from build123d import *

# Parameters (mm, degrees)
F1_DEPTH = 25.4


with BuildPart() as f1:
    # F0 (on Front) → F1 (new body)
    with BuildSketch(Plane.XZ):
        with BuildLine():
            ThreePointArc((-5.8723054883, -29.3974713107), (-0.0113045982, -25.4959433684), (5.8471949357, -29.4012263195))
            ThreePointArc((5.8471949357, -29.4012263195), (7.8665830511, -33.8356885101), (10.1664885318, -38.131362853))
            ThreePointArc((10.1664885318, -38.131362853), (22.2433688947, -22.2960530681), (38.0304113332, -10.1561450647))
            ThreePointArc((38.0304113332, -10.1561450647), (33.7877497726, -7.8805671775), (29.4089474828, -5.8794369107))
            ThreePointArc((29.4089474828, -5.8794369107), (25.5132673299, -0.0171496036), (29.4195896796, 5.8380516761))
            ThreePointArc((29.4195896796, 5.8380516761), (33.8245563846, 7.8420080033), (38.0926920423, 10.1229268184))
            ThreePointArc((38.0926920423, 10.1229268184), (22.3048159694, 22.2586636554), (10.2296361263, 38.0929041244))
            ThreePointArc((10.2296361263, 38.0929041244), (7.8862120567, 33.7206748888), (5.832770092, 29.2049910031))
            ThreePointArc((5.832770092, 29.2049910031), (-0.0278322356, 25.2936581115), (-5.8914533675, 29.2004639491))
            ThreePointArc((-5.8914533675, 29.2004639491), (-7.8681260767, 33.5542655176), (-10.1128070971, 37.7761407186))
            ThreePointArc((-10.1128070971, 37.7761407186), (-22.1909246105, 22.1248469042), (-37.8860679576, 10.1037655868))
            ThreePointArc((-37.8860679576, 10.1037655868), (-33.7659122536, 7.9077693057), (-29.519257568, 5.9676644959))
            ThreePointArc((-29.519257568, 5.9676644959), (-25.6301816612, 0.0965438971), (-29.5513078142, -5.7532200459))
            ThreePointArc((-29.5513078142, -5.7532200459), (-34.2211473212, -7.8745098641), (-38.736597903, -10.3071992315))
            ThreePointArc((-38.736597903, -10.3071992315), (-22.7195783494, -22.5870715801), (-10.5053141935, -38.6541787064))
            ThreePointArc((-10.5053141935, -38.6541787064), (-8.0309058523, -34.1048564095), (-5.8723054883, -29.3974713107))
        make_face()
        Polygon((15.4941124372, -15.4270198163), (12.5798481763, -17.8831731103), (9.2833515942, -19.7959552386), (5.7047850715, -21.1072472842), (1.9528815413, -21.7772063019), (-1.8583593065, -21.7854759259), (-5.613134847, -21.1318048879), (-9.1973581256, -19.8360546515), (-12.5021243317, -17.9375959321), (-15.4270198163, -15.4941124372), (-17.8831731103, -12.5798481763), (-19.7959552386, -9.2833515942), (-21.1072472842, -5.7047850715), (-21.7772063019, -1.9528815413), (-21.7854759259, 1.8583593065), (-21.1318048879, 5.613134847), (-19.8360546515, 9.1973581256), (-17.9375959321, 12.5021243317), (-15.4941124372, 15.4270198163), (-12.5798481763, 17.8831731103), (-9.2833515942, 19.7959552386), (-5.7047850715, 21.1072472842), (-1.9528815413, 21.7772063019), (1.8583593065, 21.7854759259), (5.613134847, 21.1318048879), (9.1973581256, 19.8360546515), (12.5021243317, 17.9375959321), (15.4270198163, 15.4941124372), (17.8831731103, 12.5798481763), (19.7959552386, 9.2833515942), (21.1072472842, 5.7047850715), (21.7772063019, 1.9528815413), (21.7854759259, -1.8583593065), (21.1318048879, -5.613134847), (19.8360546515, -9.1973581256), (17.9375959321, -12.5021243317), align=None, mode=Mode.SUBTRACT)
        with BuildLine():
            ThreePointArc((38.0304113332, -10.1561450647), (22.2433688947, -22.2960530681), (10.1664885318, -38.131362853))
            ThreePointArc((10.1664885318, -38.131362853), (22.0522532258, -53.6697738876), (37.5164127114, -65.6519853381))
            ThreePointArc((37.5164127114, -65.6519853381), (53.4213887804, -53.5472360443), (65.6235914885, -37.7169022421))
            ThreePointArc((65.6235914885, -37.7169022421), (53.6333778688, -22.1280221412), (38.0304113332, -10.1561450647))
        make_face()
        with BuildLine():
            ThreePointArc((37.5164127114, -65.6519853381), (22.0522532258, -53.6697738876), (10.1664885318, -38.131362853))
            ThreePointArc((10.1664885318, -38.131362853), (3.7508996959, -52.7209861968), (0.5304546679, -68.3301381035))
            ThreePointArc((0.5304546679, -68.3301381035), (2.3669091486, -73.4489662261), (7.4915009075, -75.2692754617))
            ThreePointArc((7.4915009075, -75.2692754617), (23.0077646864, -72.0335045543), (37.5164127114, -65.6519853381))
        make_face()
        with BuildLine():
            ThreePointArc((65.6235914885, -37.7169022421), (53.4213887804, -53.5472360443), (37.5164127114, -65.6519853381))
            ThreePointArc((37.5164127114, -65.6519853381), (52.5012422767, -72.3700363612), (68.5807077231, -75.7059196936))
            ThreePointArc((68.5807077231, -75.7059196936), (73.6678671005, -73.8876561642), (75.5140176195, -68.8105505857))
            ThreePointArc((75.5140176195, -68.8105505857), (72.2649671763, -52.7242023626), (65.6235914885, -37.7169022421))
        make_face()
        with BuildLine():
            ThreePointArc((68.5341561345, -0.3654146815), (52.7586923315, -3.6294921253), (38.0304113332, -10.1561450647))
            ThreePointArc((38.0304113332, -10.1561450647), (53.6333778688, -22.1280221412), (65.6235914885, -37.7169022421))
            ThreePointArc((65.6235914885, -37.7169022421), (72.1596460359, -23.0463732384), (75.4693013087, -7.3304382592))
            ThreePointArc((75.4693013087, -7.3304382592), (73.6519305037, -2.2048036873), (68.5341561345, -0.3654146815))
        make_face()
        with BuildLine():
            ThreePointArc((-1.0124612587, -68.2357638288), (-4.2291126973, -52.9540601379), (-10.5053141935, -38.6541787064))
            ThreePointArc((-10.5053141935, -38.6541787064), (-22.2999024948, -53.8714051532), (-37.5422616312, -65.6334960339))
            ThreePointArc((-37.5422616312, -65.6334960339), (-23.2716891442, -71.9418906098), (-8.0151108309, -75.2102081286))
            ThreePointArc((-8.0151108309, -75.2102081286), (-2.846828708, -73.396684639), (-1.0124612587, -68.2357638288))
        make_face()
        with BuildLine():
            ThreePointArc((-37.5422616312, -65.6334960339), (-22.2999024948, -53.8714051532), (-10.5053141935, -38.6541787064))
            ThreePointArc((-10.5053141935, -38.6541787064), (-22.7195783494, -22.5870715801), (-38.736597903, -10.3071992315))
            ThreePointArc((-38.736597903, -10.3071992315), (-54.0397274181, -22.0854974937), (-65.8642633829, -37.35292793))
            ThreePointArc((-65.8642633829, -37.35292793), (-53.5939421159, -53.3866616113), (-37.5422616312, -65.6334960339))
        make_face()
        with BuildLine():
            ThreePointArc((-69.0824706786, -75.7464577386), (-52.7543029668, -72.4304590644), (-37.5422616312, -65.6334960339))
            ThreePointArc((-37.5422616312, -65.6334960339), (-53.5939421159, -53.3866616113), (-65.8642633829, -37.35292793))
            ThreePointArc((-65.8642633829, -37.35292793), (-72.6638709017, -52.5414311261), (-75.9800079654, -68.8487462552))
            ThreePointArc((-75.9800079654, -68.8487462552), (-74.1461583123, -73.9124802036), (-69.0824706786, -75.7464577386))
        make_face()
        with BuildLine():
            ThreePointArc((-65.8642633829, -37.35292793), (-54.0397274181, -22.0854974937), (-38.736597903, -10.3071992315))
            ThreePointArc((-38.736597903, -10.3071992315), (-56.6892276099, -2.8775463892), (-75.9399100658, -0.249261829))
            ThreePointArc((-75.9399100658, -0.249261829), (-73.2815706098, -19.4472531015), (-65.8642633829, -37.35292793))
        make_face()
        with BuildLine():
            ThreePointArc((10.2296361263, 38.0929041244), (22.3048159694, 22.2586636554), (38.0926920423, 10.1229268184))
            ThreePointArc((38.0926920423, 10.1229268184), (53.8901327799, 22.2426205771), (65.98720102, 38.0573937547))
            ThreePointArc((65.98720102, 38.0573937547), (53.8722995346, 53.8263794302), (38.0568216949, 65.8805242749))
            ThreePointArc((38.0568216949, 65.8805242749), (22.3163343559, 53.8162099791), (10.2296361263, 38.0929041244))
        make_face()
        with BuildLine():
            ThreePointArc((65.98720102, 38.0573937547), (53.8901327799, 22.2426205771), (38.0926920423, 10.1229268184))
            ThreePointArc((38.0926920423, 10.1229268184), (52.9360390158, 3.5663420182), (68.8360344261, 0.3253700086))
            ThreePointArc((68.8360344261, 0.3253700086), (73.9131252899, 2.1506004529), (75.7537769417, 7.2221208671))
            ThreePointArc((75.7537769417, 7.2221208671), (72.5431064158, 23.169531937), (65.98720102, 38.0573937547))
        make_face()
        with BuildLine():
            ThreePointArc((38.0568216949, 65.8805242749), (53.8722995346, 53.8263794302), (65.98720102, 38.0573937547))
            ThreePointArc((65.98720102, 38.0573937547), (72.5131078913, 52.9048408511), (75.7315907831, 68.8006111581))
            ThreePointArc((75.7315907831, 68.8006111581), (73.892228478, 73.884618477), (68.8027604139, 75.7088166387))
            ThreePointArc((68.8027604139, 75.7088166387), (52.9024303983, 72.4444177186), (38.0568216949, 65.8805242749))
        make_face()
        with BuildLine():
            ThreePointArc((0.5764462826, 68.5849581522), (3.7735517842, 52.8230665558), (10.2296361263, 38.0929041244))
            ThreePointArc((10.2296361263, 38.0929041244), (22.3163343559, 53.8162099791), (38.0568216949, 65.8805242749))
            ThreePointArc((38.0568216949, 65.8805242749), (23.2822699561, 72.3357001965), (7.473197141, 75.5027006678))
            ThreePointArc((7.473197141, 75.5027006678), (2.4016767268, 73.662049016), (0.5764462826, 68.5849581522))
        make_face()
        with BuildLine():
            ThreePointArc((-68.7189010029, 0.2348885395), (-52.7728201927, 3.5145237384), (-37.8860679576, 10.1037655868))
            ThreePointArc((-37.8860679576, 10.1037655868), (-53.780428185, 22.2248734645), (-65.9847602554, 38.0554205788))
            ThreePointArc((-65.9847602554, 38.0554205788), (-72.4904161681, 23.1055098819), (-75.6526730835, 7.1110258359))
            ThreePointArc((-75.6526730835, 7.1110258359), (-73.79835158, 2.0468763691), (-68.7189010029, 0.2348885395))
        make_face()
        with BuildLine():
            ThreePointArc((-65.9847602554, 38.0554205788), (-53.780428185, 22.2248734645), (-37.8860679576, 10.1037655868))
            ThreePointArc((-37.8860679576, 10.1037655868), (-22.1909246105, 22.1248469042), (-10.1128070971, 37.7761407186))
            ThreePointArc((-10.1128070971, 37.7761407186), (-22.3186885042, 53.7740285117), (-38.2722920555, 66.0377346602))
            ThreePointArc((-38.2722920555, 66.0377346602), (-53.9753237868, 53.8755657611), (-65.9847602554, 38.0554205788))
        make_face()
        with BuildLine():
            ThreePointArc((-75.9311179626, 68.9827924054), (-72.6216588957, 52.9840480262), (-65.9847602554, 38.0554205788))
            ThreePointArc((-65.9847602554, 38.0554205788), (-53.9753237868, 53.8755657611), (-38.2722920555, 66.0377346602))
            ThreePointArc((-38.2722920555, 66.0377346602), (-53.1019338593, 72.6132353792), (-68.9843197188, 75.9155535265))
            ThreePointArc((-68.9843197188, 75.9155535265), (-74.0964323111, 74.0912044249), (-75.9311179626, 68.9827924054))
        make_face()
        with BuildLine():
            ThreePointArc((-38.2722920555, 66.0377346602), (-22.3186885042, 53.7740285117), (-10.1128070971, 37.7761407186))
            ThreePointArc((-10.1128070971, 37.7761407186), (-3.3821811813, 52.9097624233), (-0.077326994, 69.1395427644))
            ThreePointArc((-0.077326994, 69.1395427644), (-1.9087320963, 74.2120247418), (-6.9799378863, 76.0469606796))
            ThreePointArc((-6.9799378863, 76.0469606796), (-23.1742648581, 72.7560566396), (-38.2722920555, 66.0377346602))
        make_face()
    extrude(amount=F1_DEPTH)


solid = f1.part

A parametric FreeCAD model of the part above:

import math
import FreeCAD as App
import Part
import Sketcher
from FreeCAD import Vector
Q = App.Units.Quantity

doc = App.newDocument("Part")
body = doc.addObject("PartDesign::Body", "Body")

# Sketch on XZ plane
sketch1 = body.newObject("Sketcher::SketchObject", "Sketch")
sketch1.AttachmentSupport = (doc.getObject("XZ_Plane"), [""])
sketch1.MapMode = "FlatFace"
sketch1.addGeometry([
    Part.ArcOfCircle(Part.Circle(Vector(0, -31.8, 0), Vector(0, 0, 1), 6.3), math.radians(23), math.radians(157)),  # 0
    Part.ArcOfCircle(Part.Circle(Vector(75.9, -0.2, 0), Vector(0, 0, 1), 75.9), math.radians(-157.36), math.radians(-149.99)),  # 1
    Part.ArcOfCircle(Part.Circle(Vector(75.9, -75.7, 0), Vector(0, 0, 1), 75.7), math.radians(150), math.radians(174)),  # 2
    Part.ArcOfCircle(Part.Circle(Vector(6.8, -69, 0), Vector(0, 0, 1), 6.3), math.radians(174), math.radians(276)),  # 3
    Part.ArcOfCircle(Part.Circle(Vector(-0.2, 0.4, 0), Vector(0, 0, 1), 76.1), math.radians(-84), math.radians(-60)),  # 4
    Part.ArcOfCircle(Part.Circle(Vector(75.9, -0.2, 0), Vector(0, 0, 1), 75.9), math.radians(-120), math.radians(-96)),  # 5
    Part.ArcOfCircle(Part.Circle(Vector(69.2, -69.4, 0), Vector(0, 0, 1), 6.3), math.radians(-96), math.radians(5)),  # 6
    Part.ArcOfCircle(Part.Circle(Vector(0.2, -75.7, 0), Vector(0, 0, 1), 75.7), math.radians(5), math.radians(30)),  # 7
    Part.ArcOfCircle(Part.Circle(Vector(-0.2, 0.4, 0), Vector(0, 0, 1), 76.1), math.radians(-30), math.radians(-6)),  # 8
    Part.ArcOfCircle(Part.Circle(Vector(69.2, -6.7, 0), Vector(0, 0, 1), 6.3), math.radians(-6), math.radians(96)),  # 9
    Part.ArcOfCircle(Part.Circle(Vector(75.9, -75.7, 0), Vector(0, 0, 1), 75.7), math.radians(96), math.radians(120)),  # 10
    Part.ArcOfCircle(Part.Circle(Vector(0.2, -75.7, 0), Vector(0, 0, 1), 75.7), math.radians(59.97), math.radians(67.26)),  # 11
    Part.ArcOfCircle(Part.Circle(Vector(31.9, 0, 0), Vector(0, 0, 1), 6.3), math.radians(113), math.radians(247)),  # 12
    Part.ArcOfCircle(Part.Circle(Vector(0.2, 75.8, 0), Vector(0, 0, 1), 75.8), math.radians(-67.37), math.radians(-60.05)),  # 13
    Part.ArcOfCircle(Part.Circle(Vector(75.9, 75.7, 0), Vector(0, 0, 1), 75.7), math.radians(-120), math.radians(-95)),  # 14
    Part.ArcOfCircle(Part.Circle(Vector(69.4, 6.6, 0), Vector(0, 0, 1), 6.3), math.radians(-95), math.radians(5)),  # 15
    Part.ArcOfCircle(Part.Circle(Vector(0.6, 0.4, 0), Vector(0, 0, 1), 75.4), math.radians(5), math.radians(30)),  # 16
    Part.ArcOfCircle(Part.Circle(Vector(0.2, 75.8, 0), Vector(0, 0, 1), 75.8), math.radians(-30), math.radians(-5)),  # 17
    Part.ArcOfCircle(Part.Circle(Vector(69.4, 69.4, 0), Vector(0, 0, 1), 6.3), math.radians(-5), math.radians(95)),  # 18
    Part.ArcOfCircle(Part.Circle(Vector(76.1, 0, 0), Vector(0, 0, 1), 76.1), math.radians(95), math.radians(120)),  # 19
    Part.ArcOfCircle(Part.Circle(Vector(0.6, 0.4, 0), Vector(0, 0, 1), 75.4), math.radians(60), math.radians(85)),  # 20
    Part.ArcOfCircle(Part.Circle(Vector(6.9, 69.2, 0), Vector(0, 0, 1), 6.3), math.radians(85), math.radians(185)),  # 21
    Part.ArcOfCircle(Part.Circle(Vector(75.9, 75.7, 0), Vector(0, 0, 1), 75.7), math.radians(-175), math.radians(-150)),  # 22
    Part.ArcOfCircle(Part.Circle(Vector(76.1, 0, 0), Vector(0, 0, 1), 76.1), math.radians(149.94), math.radians(157.42)),  # 23
    Part.ArcOfCircle(Part.Circle(Vector(0, 31.6, 0), Vector(0, 0, 1), 6.3), math.radians(-157), math.radians(-23)),  # 24
    Part.ArcOfCircle(Part.Circle(Vector(-76.5, -0.2, 0), Vector(0, 0, 1), 76.5), math.radians(22.63), math.radians(29.79)),  # 25
    Part.ArcOfCircle(Part.Circle(Vector(-76, 76.2, 0), Vector(0, 0, 1), 76.3), math.radians(-30), math.radians(-5)),  # 26
    Part.ArcOfCircle(Part.Circle(Vector(-6.4, 69.7, 0), Vector(0, 0, 1), 6.3), math.radians(-5), math.radians(95)),  # 27
    Part.ArcOfCircle(Part.Circle(Vector(-0.1, 0.5, 0), Vector(0, 0, 1), 75.9), math.radians(95), math.radians(120)),  # 28
    Part.ArcOfCircle(Part.Circle(Vector(-76.5, -0.2, 0), Vector(0, 0, 1), 76.5), math.radians(60), math.radians(84)),  # 29
    Part.ArcOfCircle(Part.Circle(Vector(-69.6, 69.6, 0), Vector(0, 0, 1), 6.3), math.radians(84), math.radians(186)),  # 30
    Part.ArcOfCircle(Part.Circle(Vector(0.1, 76.4, 0), Vector(0, 0, 1), 76.4), math.radians(-174), math.radians(-150)),  # 31
    Part.ArcOfCircle(Part.Circle(Vector(-0.1, 0.5, 0), Vector(0, 0, 1), 75.9), math.radians(150), math.radians(175)),  # 32
    Part.ArcOfCircle(Part.Circle(Vector(-69.3, 6.6, 0), Vector(0, 0, 1), 6.3), math.radians(175), math.radians(275)),  # 33
    Part.ArcOfCircle(Part.Circle(Vector(-76, 76.2, 0), Vector(0, 0, 1), 76.3), math.radians(-85), math.radians(-60)),  # 34
    Part.ArcOfCircle(Part.Circle(Vector(0.1, 76.4, 0), Vector(0, 0, 1), 76.4), math.radians(-119.81), math.radians(-112.8)),  # 35
    Part.ArcOfCircle(Part.Circle(Vector(-32, 0.1, 0), Vector(0, 0, 1), 6.3), math.radians(-68), math.radians(67)),  # 36
    Part.ArcOfCircle(Part.Circle(Vector(-0.6, -75.7, 0), Vector(0, 0, 1), 75.7), math.radians(112.49), math.radians(120.26)),  # 37
    Part.ArcOfCircle(Part.Circle(Vector(-76.5, -76.1, 0), Vector(0, 0, 1), 75.9), math.radians(60), math.radians(90)),  # 38
    Part.ArcOfCircle(Part.Circle(Vector(0.2, 0.5, 0), Vector(0, 0, 1), 76.2), math.radians(-179), math.radians(-150)),  # 39
    Part.ArcOfCircle(Part.Circle(Vector(-0.6, -75.7, 0), Vector(0, 0, 1), 75.7), math.radians(150), math.radians(175)),  # 40
    Part.ArcOfCircle(Part.Circle(Vector(-69.7, -69.4, 0), Vector(0, 0, 1), 6.3), math.radians(175), math.radians(275)),  # 41
    Part.ArcOfCircle(Part.Circle(Vector(-75.9, -0.1, 0), Vector(0, 0, 1), 75.9), math.radians(-85), math.radians(-60)),  # 42
    Part.ArcOfCircle(Part.Circle(Vector(0.2, 0.5, 0), Vector(0, 0, 1), 76.2), math.radians(-120), math.radians(-96)),  # 43
    Part.ArcOfCircle(Part.Circle(Vector(-7.3, -68.9, 0), Vector(0, 0, 1), 6.3), math.radians(-96), math.radians(6)),  # 44
    Part.ArcOfCircle(Part.Circle(Vector(-76.5, -76.1, 0), Vector(0, 0, 1), 75.9), math.radians(6), math.radians(30)),  # 45
    Part.ArcOfCircle(Part.Circle(Vector(-75.9, -0.1, 0), Vector(0, 0, 1), 75.9), math.radians(-30.5), math.radians(-22.68)),  # 46
    Part.LineSegment(Vector(17.9, -12.5, 0), Vector(15.5, -15.4, 0)),  # 47
    Part.LineSegment(Vector(15.5, -15.4, 0), Vector(12.6, -17.9, 0)),  # 48
    Part.LineSegment(Vector(12.6, -17.9, 0), Vector(9.3, -19.8, 0)),  # 49
    Part.LineSegment(Vector(9.3, -19.8, 0), Vector(5.7, -21.1, 0)),  # 50
    Part.LineSegment(Vector(5.7, -21.1, 0), Vector(2, -21.8, 0)),  # 51
    Part.LineSegment(Vector(2, -21.8, 0), Vector(-1.9, -21.8, 0)),  # 52
    Part.LineSegment(Vector(-1.9, -21.8, 0), Vector(-5.6, -21.1, 0)),  # 53
    Part.LineSegment(Vector(-5.6, -21.1, 0), Vector(-9.2, -19.8, 0)),  # 54
    Part.LineSegment(Vector(-9.2, -19.8, 0), Vector(-12.5, -17.9, 0)),  # 55
    Part.LineSegment(Vector(-12.5, -17.9, 0), Vector(-15.4, -15.5, 0)),  # 56
    Part.LineSegment(Vector(-15.4, -15.5, 0), Vector(-17.9, -12.6, 0)),  # 57
    Part.LineSegment(Vector(-17.9, -12.6, 0), Vector(-19.8, -9.3, 0)),  # 58
    Part.LineSegment(Vector(-19.8, -9.3, 0), Vector(-21.1, -5.7, 0)),  # 59
    Part.LineSegment(Vector(-21.1, -5.7, 0), Vector(-21.8, -2, 0)),  # 60
    Part.LineSegment(Vector(-21.8, -2, 0), Vector(-21.8, 1.9, 0)),  # 61
    Part.LineSegment(Vector(-21.8, 1.9, 0), Vector(-21.1, 5.6, 0)),  # 62
    Part.LineSegment(Vector(-21.1, 5.6, 0), Vector(-19.8, 9.2, 0)),  # 63
    Part.LineSegment(Vector(-19.8, 9.2, 0), Vector(-17.9, 12.5, 0)),  # 64
    Part.LineSegment(Vector(-17.9, 12.5, 0), Vector(-15.5, 15.4, 0)),  # 65
    Part.LineSegment(Vector(-15.5, 15.4, 0), Vector(-12.6, 17.9, 0)),  # 66
    Part.LineSegment(Vector(-12.6, 17.9, 0), Vector(-9.3, 19.8, 0)),  # 67
    Part.LineSegment(Vector(-9.3, 19.8, 0), Vector(-5.7, 21.1, 0)),  # 68
    Part.LineSegment(Vector(-5.7, 21.1, 0), Vector(-2, 21.8, 0)),  # 69
    Part.LineSegment(Vector(-2, 21.8, 0), Vector(1.9, 21.8, 0)),  # 70
    Part.LineSegment(Vector(1.9, 21.8, 0), Vector(5.6, 21.1, 0)),  # 71
    Part.LineSegment(Vector(5.6, 21.1, 0), Vector(9.2, 19.8, 0)),  # 72
    Part.LineSegment(Vector(9.2, 19.8, 0), Vector(12.5, 17.9, 0)),  # 73
    Part.LineSegment(Vector(12.5, 17.9, 0), Vector(15.4, 15.5, 0)),  # 74
    Part.LineSegment(Vector(15.4, 15.5, 0), Vector(17.9, 12.6, 0)),  # 75
    Part.LineSegment(Vector(17.9, 12.6, 0), Vector(19.8, 9.3, 0)),  # 76
    Part.LineSegment(Vector(19.8, 9.3, 0), Vector(21.1, 5.7, 0)),  # 77
    Part.LineSegment(Vector(21.1, 5.7, 0), Vector(21.8, 2, 0)),  # 78
    Part.LineSegment(Vector(21.8, 2, 0), Vector(21.8, -1.9, 0)),  # 79
    Part.LineSegment(Vector(21.8, -1.9, 0), Vector(21.1, -5.6, 0)),  # 80
    Part.LineSegment(Vector(21.1, -5.6, 0), Vector(19.8, -9.2, 0)),  # 81
    Part.LineSegment(Vector(19.8, -9.2, 0), Vector(17.9, -12.5, 0)),  # 82
], False)
sketch1.addConstraint([
    Sketcher.Constraint("Tangent", 0, 1, 1, 1),
    Sketcher.Constraint("Coincident", 1, 2, 2, 1),
    Sketcher.Constraint("Tangent", 2, 2, 3, 1),
    Sketcher.Constraint("Tangent", 3, 2, 4, 1),
    Sketcher.Constraint("Coincident", 4, 2, 5, 1),
    Sketcher.Constraint("Tangent", 5, 2, 6, 1),
    Sketcher.Constraint("Tangent", 6, 2, 7, 1),
    Sketcher.Constraint("Coincident", 7, 2, 8, 1),
    Sketcher.Constraint("Tangent", 8, 2, 9, 1),
    Sketcher.Constraint("Tangent", 9, 2, 10, 1),
    Sketcher.Constraint("Coincident", 10, 2, 11, 1),
    Sketcher.Constraint("Tangent", 11, 2, 12, 2),
    Sketcher.Constraint("Tangent", 12, 1, 13, 1),
    Sketcher.Constraint("Coincident", 13, 2, 14, 1),
    Sketcher.Constraint("Tangent", 14, 2, 15, 1),
    Sketcher.Constraint("Tangent", 15, 2, 16, 1),
    Sketcher.Constraint("Coincident", 16, 2, 17, 1),
    Sketcher.Constraint("Tangent", 17, 2, 18, 1),
    Sketcher.Constraint("Tangent", 18, 2, 19, 1),
    Sketcher.Constraint("Coincident", 19, 2, 20, 1),
    Sketcher.Constraint("Tangent", 20, 2, 21, 1),
    Sketcher.Constraint("Tangent", 21, 2, 22, 1),
    Sketcher.Constraint("Coincident", 22, 2, 23, 1),
    Sketcher.Constraint("Tangent", 23, 2, 24, 2),
    Sketcher.Constraint("Tangent", 24, 1, 25, 1),
    Sketcher.Constraint("Coincident", 25, 2, 26, 1),
    Sketcher.Constraint("Tangent", 26, 2, 27, 1),
    Sketcher.Constraint("Tangent", 27, 2, 28, 1),
    Sketcher.Constraint("Coincident", 28, 2, 29, 1),
    Sketcher.Constraint("Tangent", 29, 2, 30, 1),
    Sketcher.Constraint("Tangent", 30, 2, 31, 1),
    Sketcher.Constraint("Coincident", 31, 2, 32, 1),
    Sketcher.Constraint("Tangent", 32, 2, 33, 1),
    Sketcher.Constraint("Tangent", 33, 2, 34, 1),
    Sketcher.Constraint("Coincident", 34, 2, 35, 1),
    Sketcher.Constraint("Tangent", 35, 2, 36, 2),
    Sketcher.Constraint("Tangent", 36, 1, 37, 1),
    Sketcher.Constraint("Coincident", 37, 2, 38, 1),
    Sketcher.Constraint("Coincident", 38, 2, 39, 1),
    Sketcher.Constraint("Coincident", 39, 2, 40, 1),
    Sketcher.Constraint("Tangent", 40, 2, 41, 1),
    Sketcher.Constraint("Tangent", 41, 2, 42, 1),
    Sketcher.Constraint("Coincident", 42, 2, 43, 1),
    Sketcher.Constraint("Tangent", 43, 2, 44, 1),
    Sketcher.Constraint("Tangent", 44, 2, 45, 1),
    Sketcher.Constraint("Coincident", 45, 2, 46, 1),
    Sketcher.Constraint("Tangent", 46, 2, 0, 2),
    Sketcher.Constraint("Coincident", 47, 2, 48, 1),
    Sketcher.Constraint("Coincident", 48, 2, 49, 1),
    Sketcher.Constraint("Coincident", 49, 2, 50, 1),
    Sketcher.Constraint("Coincident", 50, 2, 51, 1),
    Sketcher.Constraint("Coincident", 51, 2, 52, 1),
    Sketcher.Constraint("Coincident", 52, 2, 53, 1),
    Sketcher.Constraint("Coincident", 53, 2, 54, 1),
    Sketcher.Constraint("Coincident", 54, 2, 55, 1),
    Sketcher.Constraint("Coincident", 55, 2, 56, 1),
    Sketcher.Constraint("Coincident", 56, 2, 57, 1),
    Sketcher.Constraint("Coincident", 57, 2, 58, 1),
    Sketcher.Constraint("Coincident", 58, 2, 59, 1),
    Sketcher.Constraint("Coincident", 59, 2, 60, 1),
    Sketcher.Constraint("Coincident", 60, 2, 61, 1),
    Sketcher.Constraint("Coincident", 61, 2, 62, 1),
    Sketcher.Constraint("Coincident", 62, 2, 63, 1),
    Sketcher.Constraint("Coincident", 63, 2, 64, 1),
    Sketcher.Constraint("Coincident", 64, 2, 65, 1),
    Sketcher.Constraint("Coincident", 65, 2, 66, 1),
    Sketcher.Constraint("Coincident", 66, 2, 67, 1),
    Sketcher.Constraint("Coincident", 67, 2, 68, 1),
    Sketcher.Constraint("Coincident", 68, 2, 69, 1),
    Sketcher.Constraint("Coincident", 69, 2, 70, 1),
    Sketcher.Constraint("Coincident", 70, 2, 71, 1),
    Sketcher.Constraint("Coincident", 71, 2, 72, 1),
    Sketcher.Constraint("Coincident", 72, 2, 73, 1),
    Sketcher.Constraint("Coincident", 73, 2, 74, 1),
    Sketcher.Constraint("Coincident", 74, 2, 75, 1),
    Sketcher.Constraint("Coincident", 75, 2, 76, 1),
    Sketcher.Constraint("Coincident", 76, 2, 77, 1),
    Sketcher.Constraint("Coincident", 77, 2, 78, 1),
    Sketcher.Constraint("Coincident", 78, 2, 79, 1),
    Sketcher.Constraint("Coincident", 79, 2, 80, 1),
    Sketcher.Constraint("Coincident", 80, 2, 81, 1),
    Sketcher.Constraint("Coincident", 81, 2, 82, 1),
    Sketcher.Constraint("Coincident", 82, 2, 47, 1),
    Sketcher.Constraint("Coincident", 5, 3, 1, 3),
    Sketcher.Constraint("Coincident", 8, 3, 4, 3),
    Sketcher.Constraint("Coincident", 10, 3, 2, 3),
    Sketcher.Constraint("Coincident", 11, 3, 7, 3),
    Sketcher.Constraint("Coincident", 17, 3, 13, 3),
    Sketcher.Constraint("Coincident", 20, 3, 16, 3),
    Sketcher.Constraint("Coincident", 22, 3, 14, 3),
    Sketcher.Constraint("Coincident", 23, 3, 19, 3),
    Sketcher.Constraint("Coincident", 29, 3, 25, 3),
    Sketcher.Constraint("Coincident", 32, 3, 28, 3),
    Sketcher.Constraint("Coincident", 34, 3, 26, 3),
    Sketcher.Constraint("Coincident", 35, 3, 31, 3),
    Sketcher.Constraint("Coincident", 40, 3, 37, 3),
    Sketcher.Constraint("Coincident", 43, 3, 39, 3),
    Sketcher.Constraint("Coincident", 45, 3, 38, 3),
    Sketcher.Constraint("Coincident", 46, 3, 42, 3),
    Sketcher.Constraint("Equal", 0, 3),
    Sketcher.Constraint("Equal", 1, 5),
    Sketcher.Constraint("Equal", 3, 6),
    Sketcher.Constraint("Equal", 4, 8),
    Sketcher.Constraint("Equal", 6, 9),
    Sketcher.Constraint("Equal", 2, 10),
    Sketcher.Constraint("Equal", 7, 11),
    Sketcher.Constraint("Equal", 9, 12),
    Sketcher.Constraint("Equal", 12, 15),
    Sketcher.Constraint("Equal", 13, 17),
    Sketcher.Constraint("Equal", 15, 18),
    Sketcher.Constraint("Equal", 16, 20),
    Sketcher.Constraint("Equal", 18, 21),
    Sketcher.Constraint("Equal", 14, 22),
    Sketcher.Constraint("Equal", 19, 23),
    Sketcher.Constraint("Equal", 21, 24),
    Sketcher.Constraint("Equal", 24, 27),
    Sketcher.Constraint("Equal", 25, 29),
    Sketcher.Constraint("Equal", 27, 30),
    Sketcher.Constraint("Equal", 28, 32),
    Sketcher.Constraint("Equal", 30, 33),
    Sketcher.Constraint("Equal", 26, 34),
    Sketcher.Constraint("Equal", 31, 35),
    Sketcher.Constraint("Equal", 33, 36),
    Sketcher.Constraint("Equal", 37, 40),
    Sketcher.Constraint("Equal", 36, 41),
    Sketcher.Constraint("Equal", 39, 43),
    Sketcher.Constraint("Equal", 41, 44),
    Sketcher.Constraint("Equal", 38, 45),
    Sketcher.Constraint("Equal", 42, 46),
    Sketcher.Constraint("Symmetric", 47, 2, 65, 2, -1, 1),
    Sketcher.Constraint("Symmetric", 48, 2, 66, 2, -1, 1),
    Sketcher.Constraint("Symmetric", 49, 2, 67, 2, -1, 1),
    Sketcher.Constraint("Symmetric", 50, 2, 68, 2, -1, 1),
    Sketcher.Constraint("Symmetric", 51, 2, 69, 2, -1, 1),
    Sketcher.Constraint("Symmetric", 52, 2, 70, 2, -1, 1),
    Sketcher.Constraint("Symmetric", 53, 2, 71, 2, -1, 1),
    Sketcher.Constraint("Symmetric", 54, 2, 72, 2, -1, 1),
    Sketcher.Constraint("Symmetric", 55, 2, 73, 2, -1, 1),
    Sketcher.Constraint("Symmetric", 56, 2, 74, 2, -1, 1),
    Sketcher.Constraint("Symmetric", 57, 2, 75, 2, -1, 1),
    Sketcher.Constraint("Symmetric", 58, 2, 76, 2, -1, 1),
    Sketcher.Constraint("Symmetric", 59, 2, 77, 2, -1, 1),
    Sketcher.Constraint("Symmetric", 60, 2, 78, 2, -1, 1),
    Sketcher.Constraint("Symmetric", 61, 2, 79, 2, -1, 1),
    Sketcher.Constraint("Symmetric", 62, 2, 80, 2, -1, 1),
    Sketcher.Constraint("Symmetric", 63, 2, 81, 2, -1, 1),
    Sketcher.Constraint("Symmetric", 64, 2, 82, 2, -1, 1),
    Sketcher.Constraint("Perpendicular", 47, 56),
    Sketcher.Constraint("Perpendicular", 48, 57),
    Sketcher.Constraint("Perpendicular", 49, 58),
    Sketcher.Constraint("Perpendicular", 50, 59),
    Sketcher.Constraint("Perpendicular", 51, 60),
    Sketcher.Constraint("Perpendicular", 52, 61),
    Sketcher.Constraint("Perpendicular", 53, 62),
    Sketcher.Constraint("Perpendicular", 54, 63),
    Sketcher.Constraint("Perpendicular", 55, 64),
    Sketcher.Constraint("Equal", 47, 48),
    Sketcher.Constraint("Equal", 48, 49),
    Sketcher.Constraint("Equal", 49, 50),
    Sketcher.Constraint("Equal", 50, 51),
    Sketcher.Constraint("Equal", 51, 52),
    Sketcher.Constraint("Equal", 52, 53),
    Sketcher.Constraint("Equal", 53, 54),
    Sketcher.Constraint("Equal", 54, 55),
    Sketcher.Constraint("Equal", 55, 56),
    Sketcher.Constraint("Equal", 56, 57),
    Sketcher.Constraint("Equal", 57, 58),
    Sketcher.Constraint("Equal", 58, 59),
    Sketcher.Constraint("Equal", 59, 60),
    Sketcher.Constraint("Equal", 60, 61),
    Sketcher.Constraint("Equal", 61, 62),
    Sketcher.Constraint("Equal", 62, 63),
    Sketcher.Constraint("Equal", 63, 64),
    Sketcher.Constraint("Radius", 0, Q("0.25 in")),
    Sketcher.Constraint("Radius", 1, Q("75.860819 mm")),
    Sketcher.Constraint("Radius", 2, Q("75.738649 mm")),
    Sketcher.Constraint("Radius", 4, Q("76.055311 mm")),
    Sketcher.Constraint("Radius", 16, Q("75.413681 mm")),
    Sketcher.Constraint("Radius", 25, Q("76.536228 mm")),
    Sketcher.Constraint("Radius", 26, Q("76.268481 mm")),
    Sketcher.Constraint("Radius", 31, Q("76.363582 mm")),
    Sketcher.Constraint("Radius", 42, Q("75.941221 mm")),
    Sketcher.Constraint("DistanceX", 38, 3, -1, 1, Q("3.0116998 in")),
    Sketcher.Constraint("DistanceY", 44, 3, -1, 1, Q("2.7125002 in")),
    Sketcher.Constraint("DistanceY", 8, 2, -1, 1, Q("0.2885999 in")),
    Sketcher.Constraint("DistanceX", -1, 1, 19, 2, Q("1.4983001 in")),
    Sketcher.Constraint("Radius", 7, Q("75.657764 mm")),
    Sketcher.Constraint("Radius", 13, Q("75.811367 mm")),
    Sketcher.Constraint("Radius", 14, Q("75.666765 mm")),
    Sketcher.Constraint("Radius", 19, Q("76.062048 mm")),
    Sketcher.Constraint("Radius", 28, Q("75.889316 mm")),
    Sketcher.Constraint("Radius", 37, Q("75.688908 mm")),
    Sketcher.Constraint("Radius", 38, Q("75.897964 mm")),
    Sketcher.Constraint("Radius", 39, Q("76.172325 mm")),
    Sketcher.Constraint("DistanceX", -1, 1, 18, 3, Q("69.408798 mm")),
    Sketcher.Constraint("DistanceX", 33, 3, -1, 1, Q("69.327002 mm")),
    Sketcher.Constraint("DistanceX", -1, 1, 3, 2, Q("7.491501 mm")),
    Sketcher.Constraint("DistanceX", -1, 1, 8, 2, Q("75.469301 mm")),
    Sketcher.Constraint("DistanceX", -1, 1, 16, 2, Q("65.987201 mm")),
    Sketcher.Constraint("DistanceY", -1, 1, 20, 2, Q("75.502701 mm")),
    Sketcher.Constraint("DistanceX", 33, 2, -1, 1, Q("68.718901 mm")),
    Sketcher.Constraint("DistanceY", 37, 2, -1, 1, Q("10.307199 mm")),
    Sketcher.Constraint("Distance", 47, Q("3.81125 mm")),
    Sketcher.Constraint("DistanceX", 0, 3, -1, 1, Q("0.013339 mm")),
    Sketcher.Constraint("DistanceY", 1, 3, -1, 1, Q("0.195209 mm")),
    Sketcher.Constraint("DistanceY", -1, 1, 4, 3, Q("0.396882 mm")),
    Sketcher.Constraint("DistanceX", -1, 1, 7, 3, Q("0.166718 mm")),
    Sketcher.Constraint("DistanceY", 7, 3, -1, 1, Q("75.657581 mm")),
    Sketcher.Constraint("DistanceY", -1, 1, 13, 3, Q("75.810971 mm")),
    Sketcher.Constraint("DistanceX", -1, 1, 16, 3, Q("0.649451 mm")),
    Sketcher.Constraint("DistanceY", 19, 3, -1, 1, Q("0.006029 mm")),
    Sketcher.Constraint("DistanceX", 25, 3, -1, 1, Q("76.535829 mm")),
    Sketcher.Constraint("DistanceY", -1, 1, 27, 3, Q("69.72346 mm")),
    Sketcher.Constraint("DistanceX", 28, 3, -1, 1, Q("0.054111 mm")),
    Sketcher.Constraint("DistanceX", -1, 1, 31, 3, Q("0.074942 mm")),
    Sketcher.Constraint("DistanceY", 38, 3, -1, 1, Q("76.14518 mm")),
    Sketcher.Constraint("DistanceY", -1, 1, 39, 3, Q("0.514719 mm")),
    Sketcher.Constraint("DistanceY", 41, 3, -1, 1, Q("69.422409 mm")),
    Sketcher.Constraint("DistanceY", 42, 3, -1, 1, Q("0.115592 mm")),
    Sketcher.Constraint("DistanceX", -1, 1, 1, 2, Q("10.166489 mm")),
    Sketcher.Constraint("DistanceY", -1, 1, 14, 2, Q("0.32537 mm")),
    Sketcher.Constraint("DistanceX", -1, 1, 23, 2, Q("5.83277 mm")),
    Sketcher.Constraint("DistanceX", 31, 2, -1, 1, Q("65.98476 mm")),
    Sketcher.Constraint("DistanceY", 47, 2, -1, 1, Q("15.42702 mm")),
    Sketcher.Constraint("DistanceX", -1, 1, 48, 2, Q("12.579848 mm")),
    Sketcher.Constraint("DistanceX", -1, 1, 49, 2, Q("9.283352 mm")),
    Sketcher.Constraint("DistanceX", -1, 1, 51, 2, Q("1.952882 mm")),
    Sketcher.Constraint("DistanceX", 54, 2, -1, 1, Q("9.197358 mm")),
    Sketcher.Constraint("DistanceX", -1, 1, 47, 2, Q("15.494112 mm")),
    Sketcher.Constraint("DistanceX", -1, 1, 50, 2, Q("5.704785 mm")),
    Sketcher.Constraint("DistanceY", 52, 2, -1, 1, Q("21.785476 mm")),
    Sketcher.Constraint("DistanceX", 53, 2, -1, 1, Q("5.613135 mm")),
])
pad1 = body.newObject("PartDesign::Pad", "Pad")
pad1.Profile = sketch1
pad1.Length = Q("1 in")

doc.recompute()
